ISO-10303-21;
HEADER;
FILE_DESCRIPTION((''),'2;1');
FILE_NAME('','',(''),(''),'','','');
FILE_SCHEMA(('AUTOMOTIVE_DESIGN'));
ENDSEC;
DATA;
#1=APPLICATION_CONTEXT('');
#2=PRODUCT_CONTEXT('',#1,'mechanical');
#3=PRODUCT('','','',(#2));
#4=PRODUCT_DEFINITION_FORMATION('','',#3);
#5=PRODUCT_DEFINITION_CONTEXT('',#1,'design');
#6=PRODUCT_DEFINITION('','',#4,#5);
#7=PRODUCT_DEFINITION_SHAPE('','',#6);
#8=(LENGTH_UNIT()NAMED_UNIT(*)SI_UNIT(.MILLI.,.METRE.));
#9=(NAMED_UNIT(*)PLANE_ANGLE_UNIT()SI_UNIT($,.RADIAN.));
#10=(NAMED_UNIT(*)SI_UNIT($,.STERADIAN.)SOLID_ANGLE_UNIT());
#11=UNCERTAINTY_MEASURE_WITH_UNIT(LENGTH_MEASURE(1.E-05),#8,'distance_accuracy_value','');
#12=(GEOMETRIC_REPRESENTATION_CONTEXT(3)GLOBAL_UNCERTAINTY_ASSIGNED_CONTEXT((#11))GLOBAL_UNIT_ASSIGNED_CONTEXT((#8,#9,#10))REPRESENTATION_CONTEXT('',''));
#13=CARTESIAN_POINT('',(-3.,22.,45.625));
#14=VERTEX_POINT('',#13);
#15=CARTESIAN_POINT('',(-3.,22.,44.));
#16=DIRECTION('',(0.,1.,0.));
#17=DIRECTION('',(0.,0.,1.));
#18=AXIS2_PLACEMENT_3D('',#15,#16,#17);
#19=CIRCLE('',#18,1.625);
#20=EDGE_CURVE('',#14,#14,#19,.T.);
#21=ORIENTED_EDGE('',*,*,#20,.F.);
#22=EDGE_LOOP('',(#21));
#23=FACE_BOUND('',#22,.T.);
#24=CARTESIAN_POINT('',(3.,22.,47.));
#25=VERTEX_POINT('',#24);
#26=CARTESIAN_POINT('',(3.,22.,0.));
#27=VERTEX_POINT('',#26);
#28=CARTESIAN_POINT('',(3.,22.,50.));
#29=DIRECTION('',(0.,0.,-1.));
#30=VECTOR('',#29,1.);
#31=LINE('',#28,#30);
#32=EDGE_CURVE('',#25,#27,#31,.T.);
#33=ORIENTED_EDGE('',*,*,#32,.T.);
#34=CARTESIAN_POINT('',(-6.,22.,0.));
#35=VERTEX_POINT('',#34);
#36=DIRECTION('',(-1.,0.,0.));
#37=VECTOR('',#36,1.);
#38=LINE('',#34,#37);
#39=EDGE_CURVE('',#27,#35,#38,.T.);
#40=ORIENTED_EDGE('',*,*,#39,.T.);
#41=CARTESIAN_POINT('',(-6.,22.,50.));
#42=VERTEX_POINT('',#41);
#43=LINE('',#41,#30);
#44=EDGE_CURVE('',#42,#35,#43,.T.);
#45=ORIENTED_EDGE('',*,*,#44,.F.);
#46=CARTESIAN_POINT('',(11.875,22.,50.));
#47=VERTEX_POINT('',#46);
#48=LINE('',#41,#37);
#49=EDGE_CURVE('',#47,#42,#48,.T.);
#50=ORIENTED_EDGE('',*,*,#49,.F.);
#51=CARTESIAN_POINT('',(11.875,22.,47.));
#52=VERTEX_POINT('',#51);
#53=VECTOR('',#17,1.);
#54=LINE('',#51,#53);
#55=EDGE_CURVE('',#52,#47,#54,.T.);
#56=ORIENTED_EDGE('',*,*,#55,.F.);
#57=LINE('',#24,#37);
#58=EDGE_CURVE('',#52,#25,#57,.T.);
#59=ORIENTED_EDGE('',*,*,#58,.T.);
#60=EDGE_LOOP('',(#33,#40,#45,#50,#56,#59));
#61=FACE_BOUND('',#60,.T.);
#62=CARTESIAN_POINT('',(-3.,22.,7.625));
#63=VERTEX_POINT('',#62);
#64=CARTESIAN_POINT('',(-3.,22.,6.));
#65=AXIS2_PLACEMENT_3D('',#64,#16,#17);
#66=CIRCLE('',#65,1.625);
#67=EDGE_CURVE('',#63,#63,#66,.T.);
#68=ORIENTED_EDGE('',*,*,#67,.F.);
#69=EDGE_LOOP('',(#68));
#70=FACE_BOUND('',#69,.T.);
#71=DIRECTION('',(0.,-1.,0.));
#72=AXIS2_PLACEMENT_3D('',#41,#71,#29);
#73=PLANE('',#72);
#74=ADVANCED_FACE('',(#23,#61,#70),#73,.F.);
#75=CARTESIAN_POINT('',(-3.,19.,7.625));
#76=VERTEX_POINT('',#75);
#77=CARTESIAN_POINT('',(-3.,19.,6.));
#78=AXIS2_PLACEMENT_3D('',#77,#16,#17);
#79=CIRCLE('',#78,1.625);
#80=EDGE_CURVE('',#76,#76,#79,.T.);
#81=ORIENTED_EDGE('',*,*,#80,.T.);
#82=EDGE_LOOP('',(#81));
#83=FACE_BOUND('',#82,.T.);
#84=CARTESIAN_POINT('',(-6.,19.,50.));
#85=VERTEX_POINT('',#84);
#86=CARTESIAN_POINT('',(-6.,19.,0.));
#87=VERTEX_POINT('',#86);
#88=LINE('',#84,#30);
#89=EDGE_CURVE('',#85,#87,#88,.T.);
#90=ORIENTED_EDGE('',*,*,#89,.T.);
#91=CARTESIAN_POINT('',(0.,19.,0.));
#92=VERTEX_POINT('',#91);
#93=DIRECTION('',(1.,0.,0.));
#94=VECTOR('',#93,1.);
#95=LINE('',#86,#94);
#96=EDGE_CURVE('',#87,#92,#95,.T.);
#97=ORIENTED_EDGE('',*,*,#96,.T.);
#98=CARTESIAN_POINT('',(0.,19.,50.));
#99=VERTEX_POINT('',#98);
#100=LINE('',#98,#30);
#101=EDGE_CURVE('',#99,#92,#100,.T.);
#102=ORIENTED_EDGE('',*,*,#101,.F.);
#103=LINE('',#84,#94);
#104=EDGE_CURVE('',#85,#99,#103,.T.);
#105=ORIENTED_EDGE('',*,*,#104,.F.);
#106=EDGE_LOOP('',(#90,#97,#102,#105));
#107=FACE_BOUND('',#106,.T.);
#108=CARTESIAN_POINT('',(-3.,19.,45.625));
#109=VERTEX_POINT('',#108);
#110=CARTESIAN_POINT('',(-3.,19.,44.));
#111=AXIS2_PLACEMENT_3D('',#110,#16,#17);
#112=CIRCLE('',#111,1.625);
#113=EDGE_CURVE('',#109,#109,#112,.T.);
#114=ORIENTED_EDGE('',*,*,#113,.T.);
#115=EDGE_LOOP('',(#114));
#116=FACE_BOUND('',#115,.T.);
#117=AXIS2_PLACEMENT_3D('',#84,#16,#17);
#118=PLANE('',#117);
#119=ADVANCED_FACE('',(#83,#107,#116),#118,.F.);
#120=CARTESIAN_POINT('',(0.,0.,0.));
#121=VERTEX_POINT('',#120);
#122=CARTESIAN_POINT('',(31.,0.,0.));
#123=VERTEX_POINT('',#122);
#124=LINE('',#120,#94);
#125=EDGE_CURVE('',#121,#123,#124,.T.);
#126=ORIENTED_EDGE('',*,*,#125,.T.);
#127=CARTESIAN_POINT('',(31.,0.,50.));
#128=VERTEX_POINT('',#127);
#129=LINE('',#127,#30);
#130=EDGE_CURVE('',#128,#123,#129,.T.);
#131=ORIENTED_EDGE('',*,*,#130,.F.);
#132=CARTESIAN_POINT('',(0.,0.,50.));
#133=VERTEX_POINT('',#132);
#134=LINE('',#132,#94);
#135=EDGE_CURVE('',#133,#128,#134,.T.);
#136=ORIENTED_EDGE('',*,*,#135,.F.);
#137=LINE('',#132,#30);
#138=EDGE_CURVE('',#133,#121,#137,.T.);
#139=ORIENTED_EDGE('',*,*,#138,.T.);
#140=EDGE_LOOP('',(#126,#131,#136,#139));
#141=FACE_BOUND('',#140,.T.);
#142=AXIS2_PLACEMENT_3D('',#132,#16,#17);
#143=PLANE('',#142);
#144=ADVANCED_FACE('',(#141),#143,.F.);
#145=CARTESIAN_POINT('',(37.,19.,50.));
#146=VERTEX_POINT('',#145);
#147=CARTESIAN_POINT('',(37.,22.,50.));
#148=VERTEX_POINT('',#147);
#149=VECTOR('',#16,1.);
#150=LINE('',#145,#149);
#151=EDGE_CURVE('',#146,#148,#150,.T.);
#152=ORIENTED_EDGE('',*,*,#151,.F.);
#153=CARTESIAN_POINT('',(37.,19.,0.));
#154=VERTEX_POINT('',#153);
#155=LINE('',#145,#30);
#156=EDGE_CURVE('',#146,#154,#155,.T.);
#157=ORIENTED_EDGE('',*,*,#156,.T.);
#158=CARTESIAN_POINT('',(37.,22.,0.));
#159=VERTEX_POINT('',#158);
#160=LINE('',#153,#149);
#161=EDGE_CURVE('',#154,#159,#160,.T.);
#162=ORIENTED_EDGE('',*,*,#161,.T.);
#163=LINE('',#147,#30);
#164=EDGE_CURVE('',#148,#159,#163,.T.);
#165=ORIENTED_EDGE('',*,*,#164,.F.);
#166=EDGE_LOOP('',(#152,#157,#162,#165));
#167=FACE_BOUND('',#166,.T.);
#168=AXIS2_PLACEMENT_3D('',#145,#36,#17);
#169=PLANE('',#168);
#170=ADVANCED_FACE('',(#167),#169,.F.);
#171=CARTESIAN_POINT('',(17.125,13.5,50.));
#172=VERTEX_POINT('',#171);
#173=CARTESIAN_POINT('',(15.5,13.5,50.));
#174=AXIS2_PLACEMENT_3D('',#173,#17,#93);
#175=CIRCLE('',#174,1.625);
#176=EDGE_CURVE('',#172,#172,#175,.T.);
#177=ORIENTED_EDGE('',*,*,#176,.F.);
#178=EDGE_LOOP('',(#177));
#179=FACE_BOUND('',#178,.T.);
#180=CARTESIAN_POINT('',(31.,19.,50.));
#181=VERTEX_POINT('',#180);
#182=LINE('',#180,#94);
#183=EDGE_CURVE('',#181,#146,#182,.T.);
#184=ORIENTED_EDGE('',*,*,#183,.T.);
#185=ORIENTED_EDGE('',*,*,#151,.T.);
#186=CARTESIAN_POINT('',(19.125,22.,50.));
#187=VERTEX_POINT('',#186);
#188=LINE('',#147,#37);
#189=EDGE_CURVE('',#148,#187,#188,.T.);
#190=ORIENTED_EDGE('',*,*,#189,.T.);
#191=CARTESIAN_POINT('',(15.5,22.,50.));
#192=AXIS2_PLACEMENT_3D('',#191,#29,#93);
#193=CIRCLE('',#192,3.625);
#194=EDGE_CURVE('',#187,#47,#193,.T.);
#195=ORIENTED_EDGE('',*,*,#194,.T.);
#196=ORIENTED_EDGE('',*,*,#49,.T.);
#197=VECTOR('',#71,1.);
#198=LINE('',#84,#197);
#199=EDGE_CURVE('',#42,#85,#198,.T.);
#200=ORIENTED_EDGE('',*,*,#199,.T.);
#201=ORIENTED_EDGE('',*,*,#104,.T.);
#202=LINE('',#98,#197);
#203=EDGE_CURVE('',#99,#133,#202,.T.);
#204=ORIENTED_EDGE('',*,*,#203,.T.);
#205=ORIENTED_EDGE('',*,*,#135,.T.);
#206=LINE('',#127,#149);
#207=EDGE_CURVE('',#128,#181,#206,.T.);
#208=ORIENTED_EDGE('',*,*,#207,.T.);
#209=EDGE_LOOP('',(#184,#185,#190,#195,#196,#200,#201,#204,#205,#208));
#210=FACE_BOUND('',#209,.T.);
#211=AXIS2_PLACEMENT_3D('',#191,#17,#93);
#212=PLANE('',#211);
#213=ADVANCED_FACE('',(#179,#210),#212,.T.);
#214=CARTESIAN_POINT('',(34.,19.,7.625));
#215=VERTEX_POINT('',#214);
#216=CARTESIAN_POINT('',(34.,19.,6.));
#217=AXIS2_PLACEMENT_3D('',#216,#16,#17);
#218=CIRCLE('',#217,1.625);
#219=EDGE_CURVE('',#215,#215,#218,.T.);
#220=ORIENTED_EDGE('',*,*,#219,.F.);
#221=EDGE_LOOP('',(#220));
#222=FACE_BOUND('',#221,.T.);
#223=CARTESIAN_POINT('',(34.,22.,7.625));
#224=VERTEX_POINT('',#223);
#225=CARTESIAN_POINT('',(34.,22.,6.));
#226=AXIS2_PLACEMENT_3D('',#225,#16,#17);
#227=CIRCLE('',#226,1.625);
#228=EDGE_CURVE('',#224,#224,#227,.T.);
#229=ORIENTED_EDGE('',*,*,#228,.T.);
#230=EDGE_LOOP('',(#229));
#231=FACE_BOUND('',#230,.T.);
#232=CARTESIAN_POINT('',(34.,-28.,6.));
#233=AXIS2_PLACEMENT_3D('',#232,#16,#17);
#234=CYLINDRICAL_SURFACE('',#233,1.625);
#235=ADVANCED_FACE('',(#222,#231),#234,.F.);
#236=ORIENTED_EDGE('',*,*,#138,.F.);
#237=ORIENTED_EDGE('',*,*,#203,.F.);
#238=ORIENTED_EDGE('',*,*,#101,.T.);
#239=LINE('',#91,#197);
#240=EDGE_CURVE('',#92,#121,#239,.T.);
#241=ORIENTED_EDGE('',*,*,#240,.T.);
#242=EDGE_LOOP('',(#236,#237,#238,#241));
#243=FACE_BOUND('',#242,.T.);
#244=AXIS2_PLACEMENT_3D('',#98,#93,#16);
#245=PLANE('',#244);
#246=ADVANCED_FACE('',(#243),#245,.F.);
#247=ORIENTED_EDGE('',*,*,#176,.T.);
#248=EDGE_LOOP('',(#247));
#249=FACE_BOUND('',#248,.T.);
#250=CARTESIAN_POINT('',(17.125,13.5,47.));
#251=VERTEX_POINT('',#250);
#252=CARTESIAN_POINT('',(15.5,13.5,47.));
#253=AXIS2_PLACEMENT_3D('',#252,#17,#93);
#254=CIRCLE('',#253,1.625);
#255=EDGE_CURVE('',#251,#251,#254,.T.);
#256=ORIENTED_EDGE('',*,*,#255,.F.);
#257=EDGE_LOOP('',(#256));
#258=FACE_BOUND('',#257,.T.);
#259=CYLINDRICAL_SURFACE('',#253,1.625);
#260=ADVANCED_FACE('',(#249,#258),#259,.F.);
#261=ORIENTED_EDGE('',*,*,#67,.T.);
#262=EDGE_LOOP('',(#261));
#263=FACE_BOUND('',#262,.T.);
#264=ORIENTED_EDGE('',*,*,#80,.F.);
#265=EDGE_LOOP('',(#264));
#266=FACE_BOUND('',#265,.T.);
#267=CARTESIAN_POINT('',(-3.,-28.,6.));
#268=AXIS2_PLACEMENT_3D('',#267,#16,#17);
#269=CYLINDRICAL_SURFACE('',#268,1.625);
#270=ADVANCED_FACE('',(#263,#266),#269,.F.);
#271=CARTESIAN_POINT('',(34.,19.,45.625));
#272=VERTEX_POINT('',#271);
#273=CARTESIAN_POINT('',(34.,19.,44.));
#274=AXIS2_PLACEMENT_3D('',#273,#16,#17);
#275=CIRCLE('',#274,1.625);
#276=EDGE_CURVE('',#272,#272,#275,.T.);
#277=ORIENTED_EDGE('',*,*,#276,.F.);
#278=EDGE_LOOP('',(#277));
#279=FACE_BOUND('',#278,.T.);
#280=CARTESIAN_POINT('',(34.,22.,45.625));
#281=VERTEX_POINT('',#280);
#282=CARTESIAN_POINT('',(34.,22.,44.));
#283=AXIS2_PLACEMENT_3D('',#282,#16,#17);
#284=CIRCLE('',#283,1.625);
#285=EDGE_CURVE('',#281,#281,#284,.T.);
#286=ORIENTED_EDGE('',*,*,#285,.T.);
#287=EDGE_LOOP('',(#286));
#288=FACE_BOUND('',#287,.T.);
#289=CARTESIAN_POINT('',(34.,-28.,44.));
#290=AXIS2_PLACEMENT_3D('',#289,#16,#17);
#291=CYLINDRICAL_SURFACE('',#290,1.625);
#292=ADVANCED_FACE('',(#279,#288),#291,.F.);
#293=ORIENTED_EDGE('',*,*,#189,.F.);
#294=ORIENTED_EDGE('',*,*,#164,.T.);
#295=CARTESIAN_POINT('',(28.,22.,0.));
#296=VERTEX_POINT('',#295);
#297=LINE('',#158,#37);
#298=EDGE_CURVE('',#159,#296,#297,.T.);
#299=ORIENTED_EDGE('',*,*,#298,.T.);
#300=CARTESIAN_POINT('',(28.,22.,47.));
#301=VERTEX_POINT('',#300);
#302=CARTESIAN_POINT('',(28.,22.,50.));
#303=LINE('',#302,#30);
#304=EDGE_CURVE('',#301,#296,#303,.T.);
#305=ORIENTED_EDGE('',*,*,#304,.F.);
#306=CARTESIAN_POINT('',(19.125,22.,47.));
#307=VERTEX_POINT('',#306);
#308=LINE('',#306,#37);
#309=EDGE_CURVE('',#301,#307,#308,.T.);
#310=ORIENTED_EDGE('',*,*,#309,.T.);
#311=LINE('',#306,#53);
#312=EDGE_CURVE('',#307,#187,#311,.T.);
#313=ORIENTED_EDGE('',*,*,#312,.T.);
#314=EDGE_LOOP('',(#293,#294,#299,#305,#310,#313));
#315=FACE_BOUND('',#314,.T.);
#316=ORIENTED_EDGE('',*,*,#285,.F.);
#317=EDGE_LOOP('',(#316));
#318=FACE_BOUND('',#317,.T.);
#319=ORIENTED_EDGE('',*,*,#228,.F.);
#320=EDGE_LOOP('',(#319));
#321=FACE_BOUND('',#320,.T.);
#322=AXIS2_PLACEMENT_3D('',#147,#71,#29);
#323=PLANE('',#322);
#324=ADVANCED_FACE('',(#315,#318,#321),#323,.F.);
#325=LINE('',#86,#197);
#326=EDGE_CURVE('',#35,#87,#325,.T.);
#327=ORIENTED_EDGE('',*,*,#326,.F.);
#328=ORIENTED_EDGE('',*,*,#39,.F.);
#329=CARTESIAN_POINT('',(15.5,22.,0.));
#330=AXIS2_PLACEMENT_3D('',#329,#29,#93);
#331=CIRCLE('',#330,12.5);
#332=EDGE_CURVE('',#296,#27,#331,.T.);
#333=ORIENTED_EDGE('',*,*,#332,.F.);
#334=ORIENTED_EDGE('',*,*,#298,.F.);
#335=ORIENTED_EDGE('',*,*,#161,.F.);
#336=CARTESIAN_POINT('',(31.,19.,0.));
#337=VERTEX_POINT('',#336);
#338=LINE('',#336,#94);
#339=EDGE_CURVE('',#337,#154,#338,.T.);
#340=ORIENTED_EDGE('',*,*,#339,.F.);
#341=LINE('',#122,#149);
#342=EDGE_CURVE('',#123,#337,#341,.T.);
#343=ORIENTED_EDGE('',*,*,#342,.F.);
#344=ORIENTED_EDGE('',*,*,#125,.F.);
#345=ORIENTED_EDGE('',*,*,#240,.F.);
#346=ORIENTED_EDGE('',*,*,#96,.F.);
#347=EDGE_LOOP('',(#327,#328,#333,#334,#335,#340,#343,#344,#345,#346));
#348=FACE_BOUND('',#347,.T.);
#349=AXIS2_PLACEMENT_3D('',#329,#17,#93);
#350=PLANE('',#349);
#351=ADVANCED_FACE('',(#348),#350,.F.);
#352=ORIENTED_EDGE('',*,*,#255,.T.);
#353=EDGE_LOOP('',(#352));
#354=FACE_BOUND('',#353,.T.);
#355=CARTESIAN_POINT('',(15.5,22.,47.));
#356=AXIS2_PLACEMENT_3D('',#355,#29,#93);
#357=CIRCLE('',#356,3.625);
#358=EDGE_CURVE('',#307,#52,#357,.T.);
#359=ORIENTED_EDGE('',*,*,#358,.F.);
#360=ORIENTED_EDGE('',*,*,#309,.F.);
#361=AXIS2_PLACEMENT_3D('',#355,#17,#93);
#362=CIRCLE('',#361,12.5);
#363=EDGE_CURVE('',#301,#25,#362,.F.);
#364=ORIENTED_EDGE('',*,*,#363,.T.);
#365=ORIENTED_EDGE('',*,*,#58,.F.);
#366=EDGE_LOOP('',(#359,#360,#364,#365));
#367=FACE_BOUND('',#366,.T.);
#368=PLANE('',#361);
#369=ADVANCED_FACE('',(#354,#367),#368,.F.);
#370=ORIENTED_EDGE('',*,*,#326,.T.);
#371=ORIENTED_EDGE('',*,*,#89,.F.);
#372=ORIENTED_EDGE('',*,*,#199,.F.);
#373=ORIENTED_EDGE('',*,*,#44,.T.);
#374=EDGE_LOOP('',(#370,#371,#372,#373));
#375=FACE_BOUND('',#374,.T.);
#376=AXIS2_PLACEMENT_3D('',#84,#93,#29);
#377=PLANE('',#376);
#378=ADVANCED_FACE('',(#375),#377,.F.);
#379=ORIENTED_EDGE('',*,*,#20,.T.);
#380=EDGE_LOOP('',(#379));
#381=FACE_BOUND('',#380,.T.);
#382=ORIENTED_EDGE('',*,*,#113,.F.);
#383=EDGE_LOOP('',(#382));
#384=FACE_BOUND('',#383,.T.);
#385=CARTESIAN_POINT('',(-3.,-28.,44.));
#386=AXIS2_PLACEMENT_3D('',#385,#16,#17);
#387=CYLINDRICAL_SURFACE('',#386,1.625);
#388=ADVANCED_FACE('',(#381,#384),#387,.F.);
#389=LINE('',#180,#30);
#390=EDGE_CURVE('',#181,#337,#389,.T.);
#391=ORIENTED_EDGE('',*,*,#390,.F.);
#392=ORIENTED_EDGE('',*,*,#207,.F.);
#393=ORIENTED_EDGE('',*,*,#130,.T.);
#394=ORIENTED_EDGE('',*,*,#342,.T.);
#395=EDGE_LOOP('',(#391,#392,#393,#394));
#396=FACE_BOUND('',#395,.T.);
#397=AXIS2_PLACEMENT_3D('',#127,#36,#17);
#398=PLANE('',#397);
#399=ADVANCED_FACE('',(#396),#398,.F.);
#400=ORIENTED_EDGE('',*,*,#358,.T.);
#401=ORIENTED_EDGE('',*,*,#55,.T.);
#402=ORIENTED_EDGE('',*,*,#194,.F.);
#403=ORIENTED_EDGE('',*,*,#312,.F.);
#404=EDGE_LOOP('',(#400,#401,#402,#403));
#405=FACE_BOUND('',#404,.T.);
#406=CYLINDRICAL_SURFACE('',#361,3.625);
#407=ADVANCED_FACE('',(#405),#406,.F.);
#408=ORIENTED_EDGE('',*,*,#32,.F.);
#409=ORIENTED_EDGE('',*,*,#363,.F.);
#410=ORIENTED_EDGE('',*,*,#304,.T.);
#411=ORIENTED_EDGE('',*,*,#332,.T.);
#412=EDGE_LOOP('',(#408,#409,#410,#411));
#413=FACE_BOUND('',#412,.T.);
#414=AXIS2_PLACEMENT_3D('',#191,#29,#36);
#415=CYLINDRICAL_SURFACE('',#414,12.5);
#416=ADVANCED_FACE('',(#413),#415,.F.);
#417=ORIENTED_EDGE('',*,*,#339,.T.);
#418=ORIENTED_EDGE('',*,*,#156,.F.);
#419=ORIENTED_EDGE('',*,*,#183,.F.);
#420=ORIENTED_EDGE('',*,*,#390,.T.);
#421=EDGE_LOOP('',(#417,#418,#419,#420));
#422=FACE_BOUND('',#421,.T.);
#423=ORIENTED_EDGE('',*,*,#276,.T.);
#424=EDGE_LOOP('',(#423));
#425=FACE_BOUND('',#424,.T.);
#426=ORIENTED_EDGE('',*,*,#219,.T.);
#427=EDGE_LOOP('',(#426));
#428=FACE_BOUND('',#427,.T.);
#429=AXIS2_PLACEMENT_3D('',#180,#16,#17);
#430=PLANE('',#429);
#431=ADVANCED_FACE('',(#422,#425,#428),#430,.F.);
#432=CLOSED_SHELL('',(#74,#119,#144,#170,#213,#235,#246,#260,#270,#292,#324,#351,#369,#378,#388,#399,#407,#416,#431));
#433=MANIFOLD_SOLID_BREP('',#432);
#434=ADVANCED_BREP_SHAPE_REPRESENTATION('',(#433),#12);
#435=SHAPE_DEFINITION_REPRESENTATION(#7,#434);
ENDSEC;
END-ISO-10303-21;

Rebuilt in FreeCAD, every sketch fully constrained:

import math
import FreeCAD as App
import Part
import Sketcher
from FreeCAD import Vector

doc = App.newDocument("Part")
body = doc.addObject("PartDesign::Body", "Body")

# Sketch on XY plane
sketch1 = body.newObject("Sketcher::SketchObject", "Sketch")
sketch1.AttachmentSupport = (doc.getObject("XY_Plane"), [""])
sketch1.MapMode = "FlatFace"
sketch1.addGeometry([
    Part.LineSegment(Vector(-6, 22, 0), Vector(-6, 19, 0)),  # 0
    Part.LineSegment(Vector(-6, 19, 0), Vector(0, 19, 0)),  # 1
    Part.LineSegment(Vector(0, 19, 0), Vector(0, 0, 0)),  # 2
    Part.LineSegment(Vector(0, 0, 0), Vector(31, 0, 0)),  # 3
    Part.LineSegment(Vector(31, 0, 0), Vector(31, 19, 0)),  # 4
    Part.LineSegment(Vector(31, 19, 0), Vector(37, 19, 0)),  # 5
    Part.LineSegment(Vector(37, 19, 0), Vector(37, 22, 0)),  # 6
    Part.LineSegment(Vector(37, 22, 0), Vector(28, 22, 0)),  # 7
    Part.ArcOfCircle(Part.Circle(Vector(15.5, 22, 0), Vector(0, 0, 1), 12.5), math.radians(180), math.radians(360)),  # 8
    Part.LineSegment(Vector(3, 22, 0), Vector(-6, 22, 0)),  # 9
], False)
sketch1.addConstraint([
    Sketcher.Constraint("Coincident", 0, 2, 1, 1),
    Sketcher.Constraint("Coincident", 1, 2, 2, 1),
    Sketcher.Constraint("Coincident", 2, 2, 3, 1),
    Sketcher.Constraint("Coincident", 3, 2, 4, 1),
    Sketcher.Constraint("Coincident", 4, 2, 5, 1),
    Sketcher.Constraint("Coincident", 5, 2, 6, 1),
    Sketcher.Constraint("Coincident", 6, 2, 7, 1),
    Sketcher.Constraint("Coincident", 7, 2, 8, 2),
    Sketcher.Constraint("Coincident", 8, 1, 9, 1),
    Sketcher.Constraint("Coincident", 9, 2, 0, 1),
    Sketcher.Constraint("Vertical", 0),
    Sketcher.Constraint("Horizontal", 1),
    Sketcher.Constraint("Vertical", 2),
    Sketcher.Constraint("Horizontal", 3),
    Sketcher.Constraint("Vertical", 4),
    Sketcher.Constraint("Horizontal", 5),
    Sketcher.Constraint("Vertical", 6),
    Sketcher.Constraint("Horizontal", 7),
    Sketcher.Constraint("Horizontal", 9),
    Sketcher.Constraint("Coincident", 2, 2, -1, 1),
    Sketcher.Constraint("Horizontal", 1, 2, 4, 2),
    Sketcher.Constraint("Horizontal", 8, 3, 6, 2),
    Sketcher.Constraint("Horizontal", 7, 2, 8, 1),
    Sketcher.Constraint("Equal", 1, 5),
    Sketcher.Constraint("Equal", 7, 9),
    Sketcher.Constraint("Radius", 8, 12.5),
    Sketcher.Constraint("DistanceX", 1, 1, 1, 2, 6.0),
    Sketcher.Constraint("DistanceX", 3, 1, 3, 2, 31.0),
    Sketcher.Constraint("DistanceY", 0, 2, 0, 1, 3.0),
    Sketcher.Constraint("DistanceY", 2, 2, 2, 1, 19.0),
])
pad1 = body.newObject("PartDesign::Pad", "Pad")
pad1.Profile = sketch1
pad1.Length = 50

# Sketch on XZ plane
sketch2 = body.newObject("Sketcher::SketchObject", "Sketch001")
sketch2.AttachmentSupport = (doc.getObject("XZ_Plane"), [""])
sketch2.MapMode = "FlatFace"
sketch2.AttachmentOffset = App.Placement(Vector(0, 0, -22), App.Rotation())
sketch2.addGeometry([
    Part.Circle(Vector(-3, 44, 0), Vector(0, 0, 1), 1.6),
    Part.Circle(Vector(34, 44, 0), Vector(0, 0, 1), 1.6),
    Part.Circle(Vector(34, 6, 0), Vector(0, 0, 1), 1.6),
    Part.Circle(Vector(-3, 6, 0), Vector(0, 0, 1), 1.6),
], False)
sketch2.addConstraint([
    Sketcher.Constraint("Equal", 0, 1),
    Sketcher.Constraint("Equal", 1, 2),
    Sketcher.Constraint("Equal", 2, 3),
    Sketcher.Constraint("Horizontal", 0, 3, 1, 3),
    Sketcher.Constraint("Horizontal", 2, 3, 3, 3),
    Sketcher.Constraint("Vertical", 1, 3, 2, 3),
    Sketcher.Constraint("Vertical", 0, 3, 3, 3),
    Sketcher.Constraint("Diameter", 0, 3.25),
    Sketcher.Constraint("DistanceX", 0, 3, -1, 1, 3.0),
    Sketcher.Constraint("DistanceY", -1, 1, 0, 3, 44.0),
    Sketcher.Constraint("DistanceX", -1, 1, 1, 3, 34.0),
    Sketcher.Constraint("DistanceY", -1, 1, 2, 3, 6.0),
])
pocket1 = body.newObject("PartDesign::Pocket", "Pocket")
pocket1.Profile = sketch2
pocket1.Length = 50
pocket1.Reversed = True

# Sketch on XY plane
sketch3 = body.newObject("Sketcher::SketchObject", "Sketch002")
sketch3.AttachmentSupport = (doc.getObject("XY_Plane"), [""])
sketch3.MapMode = "FlatFace"
sketch3.AttachmentOffset = App.Placement(Vector(0, 0, 50), App.Rotation())
sketch3.addGeometry([
    Part.LineSegment(Vector(28, 22, 0), Vector(19.1, 22, 0)),  # 0
    Part.ArcOfCircle(Part.Circle(Vector(15.5, 22, 0), Vector(0, 0, 1), 3.6), math.radians(180), math.radians(360)),  # 1
    Part.LineSegment(Vector(11.9, 22, 0), Vector(3, 22, 0)),  # 2
    Part.LineSegment(Vector(3, 22, 0), Vector(3, 9.5, 0)),  # 3
    Part.LineSegment(Vector(3, 9.5, 0), Vector(28, 9.5, 0)),  # 4
    Part.LineSegment(Vector(28, 9.5, 0), Vector(28, 22, 0)),  # 5
    Part.Circle(Vector(15.5, 13.5, 0), Vector(0, 0, 1), 1.6),  # 6
], False)
sketch3.addConstraint([
    Sketcher.Constraint("Coincident", 0, 2, 1, 2),
    Sketcher.Constraint("Coincident", 1, 1, 2, 1),
    Sketcher.Constraint("Coincident", 2, 2, 3, 1),
    Sketcher.Constraint("Coincident", 3, 2, 4, 1),
    Sketcher.Constraint("Coincident", 4, 2, 5, 1),
    Sketcher.Constraint("Coincident", 5, 2, 0, 1),
    Sketcher.Constraint("Horizontal", 0),
    Sketcher.Constraint("Horizontal", 2),
    Sketcher.Constraint("Vertical", 3),
    Sketcher.Constraint("Horizontal", 4),
    Sketcher.Constraint("Vertical", 5),
    Sketcher.Constraint("Horizontal", 1, 3, 0, 2),
    Sketcher.Constraint("Horizontal", 0, 2, 1, 1),
    Sketcher.Constraint("Vertical", 1, 3, 6, 3),
    Sketcher.Constraint("Equal", 0, 2),
    Sketcher.Constraint("Diameter", 6, 3.25),
    Sketcher.Constraint("DistanceX", 4, 1, 4, 2, 25.0),
    Sketcher.Constraint("DistanceY", 3, 2, 3, 1, 12.5),
    Sketcher.Constraint("DistanceY", -1, 1, 1, 3, 22.0),
    Sketcher.Constraint("DistanceX", -1, 1, 2, 2, 3.0),
    Sketcher.Constraint("Radius", 1, 3.625),
    Sketcher.Constraint("DistanceY", 3, 2, 6, 3, 4.0),
])
pad2 = body.newObject("PartDesign::Pad", "Pad001")
pad2.Profile = sketch3
pad2.Length = 3
pad2.Reversed = True

doc.recompute()
